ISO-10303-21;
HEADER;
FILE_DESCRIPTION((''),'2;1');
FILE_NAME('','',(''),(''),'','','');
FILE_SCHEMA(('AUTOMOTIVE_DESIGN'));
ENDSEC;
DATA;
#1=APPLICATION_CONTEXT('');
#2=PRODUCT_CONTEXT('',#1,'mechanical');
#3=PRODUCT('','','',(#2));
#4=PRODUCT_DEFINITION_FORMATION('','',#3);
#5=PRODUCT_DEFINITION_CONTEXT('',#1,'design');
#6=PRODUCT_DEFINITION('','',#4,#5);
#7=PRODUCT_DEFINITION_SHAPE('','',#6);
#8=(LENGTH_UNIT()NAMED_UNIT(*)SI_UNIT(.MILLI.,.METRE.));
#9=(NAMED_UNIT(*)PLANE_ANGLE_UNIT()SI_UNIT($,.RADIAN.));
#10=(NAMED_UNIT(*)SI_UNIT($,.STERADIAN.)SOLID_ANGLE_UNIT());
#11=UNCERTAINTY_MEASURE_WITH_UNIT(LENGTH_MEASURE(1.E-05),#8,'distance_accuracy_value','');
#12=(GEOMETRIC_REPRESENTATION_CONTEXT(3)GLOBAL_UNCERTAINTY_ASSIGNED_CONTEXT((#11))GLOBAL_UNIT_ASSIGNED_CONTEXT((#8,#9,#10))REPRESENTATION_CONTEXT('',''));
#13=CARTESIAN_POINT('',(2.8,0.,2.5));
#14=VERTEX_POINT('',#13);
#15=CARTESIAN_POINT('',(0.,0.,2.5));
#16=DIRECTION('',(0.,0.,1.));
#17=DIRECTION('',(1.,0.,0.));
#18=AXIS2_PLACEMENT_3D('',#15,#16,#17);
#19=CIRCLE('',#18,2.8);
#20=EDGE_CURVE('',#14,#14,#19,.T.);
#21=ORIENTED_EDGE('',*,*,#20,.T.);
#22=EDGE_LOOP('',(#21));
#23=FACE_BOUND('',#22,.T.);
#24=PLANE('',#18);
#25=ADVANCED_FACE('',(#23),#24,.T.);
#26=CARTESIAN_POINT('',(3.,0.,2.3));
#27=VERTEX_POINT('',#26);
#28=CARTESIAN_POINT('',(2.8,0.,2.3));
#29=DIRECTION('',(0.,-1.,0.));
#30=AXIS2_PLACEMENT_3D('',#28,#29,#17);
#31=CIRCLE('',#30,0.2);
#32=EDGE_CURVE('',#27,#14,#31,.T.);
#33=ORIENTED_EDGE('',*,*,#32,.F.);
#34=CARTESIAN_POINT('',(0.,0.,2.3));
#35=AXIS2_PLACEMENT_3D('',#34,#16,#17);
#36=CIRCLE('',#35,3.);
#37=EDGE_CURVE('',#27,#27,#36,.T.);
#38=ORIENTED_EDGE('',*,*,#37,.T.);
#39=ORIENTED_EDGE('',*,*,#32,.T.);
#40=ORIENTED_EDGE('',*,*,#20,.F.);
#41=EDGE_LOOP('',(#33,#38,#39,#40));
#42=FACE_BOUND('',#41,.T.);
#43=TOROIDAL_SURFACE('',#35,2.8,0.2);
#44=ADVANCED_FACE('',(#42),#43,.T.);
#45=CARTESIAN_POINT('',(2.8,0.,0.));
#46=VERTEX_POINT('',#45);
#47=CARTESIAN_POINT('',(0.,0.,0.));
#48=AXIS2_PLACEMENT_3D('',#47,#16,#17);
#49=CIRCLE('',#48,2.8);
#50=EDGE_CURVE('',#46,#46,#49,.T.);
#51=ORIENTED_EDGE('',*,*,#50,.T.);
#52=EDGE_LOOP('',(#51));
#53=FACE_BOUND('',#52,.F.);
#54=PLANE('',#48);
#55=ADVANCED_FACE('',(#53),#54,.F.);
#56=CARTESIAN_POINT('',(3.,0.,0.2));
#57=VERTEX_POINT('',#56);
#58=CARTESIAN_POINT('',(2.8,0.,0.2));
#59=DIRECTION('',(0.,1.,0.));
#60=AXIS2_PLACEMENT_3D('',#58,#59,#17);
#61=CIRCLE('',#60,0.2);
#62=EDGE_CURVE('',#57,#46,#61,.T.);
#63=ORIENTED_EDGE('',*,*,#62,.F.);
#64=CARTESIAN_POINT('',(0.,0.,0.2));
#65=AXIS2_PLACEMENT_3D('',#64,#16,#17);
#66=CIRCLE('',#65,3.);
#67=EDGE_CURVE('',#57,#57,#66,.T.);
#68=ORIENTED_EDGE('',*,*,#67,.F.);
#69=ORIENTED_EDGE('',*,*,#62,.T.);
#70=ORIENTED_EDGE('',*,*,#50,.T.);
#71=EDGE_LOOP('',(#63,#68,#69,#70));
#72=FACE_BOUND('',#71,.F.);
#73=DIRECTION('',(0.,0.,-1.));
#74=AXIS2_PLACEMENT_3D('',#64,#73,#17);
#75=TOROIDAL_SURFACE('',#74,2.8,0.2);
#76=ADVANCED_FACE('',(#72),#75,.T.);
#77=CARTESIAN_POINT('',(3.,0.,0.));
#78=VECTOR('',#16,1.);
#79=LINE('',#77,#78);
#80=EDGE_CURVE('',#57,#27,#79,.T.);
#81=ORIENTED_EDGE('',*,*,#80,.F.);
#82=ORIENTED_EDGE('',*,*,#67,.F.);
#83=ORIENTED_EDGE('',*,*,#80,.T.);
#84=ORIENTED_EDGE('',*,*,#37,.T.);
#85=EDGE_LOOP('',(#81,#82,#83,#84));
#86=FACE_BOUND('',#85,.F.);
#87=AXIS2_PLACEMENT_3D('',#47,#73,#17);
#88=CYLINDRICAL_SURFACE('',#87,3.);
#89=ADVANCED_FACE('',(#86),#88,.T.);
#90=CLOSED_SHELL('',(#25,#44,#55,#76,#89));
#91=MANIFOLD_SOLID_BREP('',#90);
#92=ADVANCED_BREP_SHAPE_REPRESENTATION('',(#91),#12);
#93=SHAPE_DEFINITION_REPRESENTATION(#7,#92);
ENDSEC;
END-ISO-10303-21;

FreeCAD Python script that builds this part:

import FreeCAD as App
import Part
import Sketcher
from FreeCAD import Vector
Q = App.Units.Quantity


def edges_at(feature, points):
    """Names of the edges that pass closest to the given points."""
    edges = feature.Shape.Edges
    near = lambda p: min(range(len(edges)), key=lambda i: edges[i].distToShape(Part.Vertex(*p))[0])
    return sorted({f"Edge{near(p) + 1}" for p in points})

doc = App.newDocument("Part")
body = doc.addObject("PartDesign::Body", "Body")

sketch1 = body.newObject("Sketcher::SketchObject", "Sketch")
sketch1.AttachmentSupport = (doc.getObject("XY_Plane"), [""])
sketch1.MapMode = "FlatFace"
sketch1.addGeometry(Part.Circle(Vector(0, 0, 0), Vector(0, 0, 1), 3), False)
sketch1.addConstraint([
    Sketcher.Constraint("Coincident", 0, 3, -1, 1),
    Sketcher.Constraint("Diameter", 0, Q("6 mm")),
])
pad1 = body.newObject("PartDesign::Pad", "Pad")
pad1.Profile = sketch1
pad1.Length = 2.5
doc.recompute()

fillet = body.newObject("PartDesign::Fillet", "Fillet")
fillet.Base = (pad1, edges_at(pad1, [(-3, 0, 0), (-3, 0, 2.5)]))
fillet.Radius = 0.2

doc.recompute()
